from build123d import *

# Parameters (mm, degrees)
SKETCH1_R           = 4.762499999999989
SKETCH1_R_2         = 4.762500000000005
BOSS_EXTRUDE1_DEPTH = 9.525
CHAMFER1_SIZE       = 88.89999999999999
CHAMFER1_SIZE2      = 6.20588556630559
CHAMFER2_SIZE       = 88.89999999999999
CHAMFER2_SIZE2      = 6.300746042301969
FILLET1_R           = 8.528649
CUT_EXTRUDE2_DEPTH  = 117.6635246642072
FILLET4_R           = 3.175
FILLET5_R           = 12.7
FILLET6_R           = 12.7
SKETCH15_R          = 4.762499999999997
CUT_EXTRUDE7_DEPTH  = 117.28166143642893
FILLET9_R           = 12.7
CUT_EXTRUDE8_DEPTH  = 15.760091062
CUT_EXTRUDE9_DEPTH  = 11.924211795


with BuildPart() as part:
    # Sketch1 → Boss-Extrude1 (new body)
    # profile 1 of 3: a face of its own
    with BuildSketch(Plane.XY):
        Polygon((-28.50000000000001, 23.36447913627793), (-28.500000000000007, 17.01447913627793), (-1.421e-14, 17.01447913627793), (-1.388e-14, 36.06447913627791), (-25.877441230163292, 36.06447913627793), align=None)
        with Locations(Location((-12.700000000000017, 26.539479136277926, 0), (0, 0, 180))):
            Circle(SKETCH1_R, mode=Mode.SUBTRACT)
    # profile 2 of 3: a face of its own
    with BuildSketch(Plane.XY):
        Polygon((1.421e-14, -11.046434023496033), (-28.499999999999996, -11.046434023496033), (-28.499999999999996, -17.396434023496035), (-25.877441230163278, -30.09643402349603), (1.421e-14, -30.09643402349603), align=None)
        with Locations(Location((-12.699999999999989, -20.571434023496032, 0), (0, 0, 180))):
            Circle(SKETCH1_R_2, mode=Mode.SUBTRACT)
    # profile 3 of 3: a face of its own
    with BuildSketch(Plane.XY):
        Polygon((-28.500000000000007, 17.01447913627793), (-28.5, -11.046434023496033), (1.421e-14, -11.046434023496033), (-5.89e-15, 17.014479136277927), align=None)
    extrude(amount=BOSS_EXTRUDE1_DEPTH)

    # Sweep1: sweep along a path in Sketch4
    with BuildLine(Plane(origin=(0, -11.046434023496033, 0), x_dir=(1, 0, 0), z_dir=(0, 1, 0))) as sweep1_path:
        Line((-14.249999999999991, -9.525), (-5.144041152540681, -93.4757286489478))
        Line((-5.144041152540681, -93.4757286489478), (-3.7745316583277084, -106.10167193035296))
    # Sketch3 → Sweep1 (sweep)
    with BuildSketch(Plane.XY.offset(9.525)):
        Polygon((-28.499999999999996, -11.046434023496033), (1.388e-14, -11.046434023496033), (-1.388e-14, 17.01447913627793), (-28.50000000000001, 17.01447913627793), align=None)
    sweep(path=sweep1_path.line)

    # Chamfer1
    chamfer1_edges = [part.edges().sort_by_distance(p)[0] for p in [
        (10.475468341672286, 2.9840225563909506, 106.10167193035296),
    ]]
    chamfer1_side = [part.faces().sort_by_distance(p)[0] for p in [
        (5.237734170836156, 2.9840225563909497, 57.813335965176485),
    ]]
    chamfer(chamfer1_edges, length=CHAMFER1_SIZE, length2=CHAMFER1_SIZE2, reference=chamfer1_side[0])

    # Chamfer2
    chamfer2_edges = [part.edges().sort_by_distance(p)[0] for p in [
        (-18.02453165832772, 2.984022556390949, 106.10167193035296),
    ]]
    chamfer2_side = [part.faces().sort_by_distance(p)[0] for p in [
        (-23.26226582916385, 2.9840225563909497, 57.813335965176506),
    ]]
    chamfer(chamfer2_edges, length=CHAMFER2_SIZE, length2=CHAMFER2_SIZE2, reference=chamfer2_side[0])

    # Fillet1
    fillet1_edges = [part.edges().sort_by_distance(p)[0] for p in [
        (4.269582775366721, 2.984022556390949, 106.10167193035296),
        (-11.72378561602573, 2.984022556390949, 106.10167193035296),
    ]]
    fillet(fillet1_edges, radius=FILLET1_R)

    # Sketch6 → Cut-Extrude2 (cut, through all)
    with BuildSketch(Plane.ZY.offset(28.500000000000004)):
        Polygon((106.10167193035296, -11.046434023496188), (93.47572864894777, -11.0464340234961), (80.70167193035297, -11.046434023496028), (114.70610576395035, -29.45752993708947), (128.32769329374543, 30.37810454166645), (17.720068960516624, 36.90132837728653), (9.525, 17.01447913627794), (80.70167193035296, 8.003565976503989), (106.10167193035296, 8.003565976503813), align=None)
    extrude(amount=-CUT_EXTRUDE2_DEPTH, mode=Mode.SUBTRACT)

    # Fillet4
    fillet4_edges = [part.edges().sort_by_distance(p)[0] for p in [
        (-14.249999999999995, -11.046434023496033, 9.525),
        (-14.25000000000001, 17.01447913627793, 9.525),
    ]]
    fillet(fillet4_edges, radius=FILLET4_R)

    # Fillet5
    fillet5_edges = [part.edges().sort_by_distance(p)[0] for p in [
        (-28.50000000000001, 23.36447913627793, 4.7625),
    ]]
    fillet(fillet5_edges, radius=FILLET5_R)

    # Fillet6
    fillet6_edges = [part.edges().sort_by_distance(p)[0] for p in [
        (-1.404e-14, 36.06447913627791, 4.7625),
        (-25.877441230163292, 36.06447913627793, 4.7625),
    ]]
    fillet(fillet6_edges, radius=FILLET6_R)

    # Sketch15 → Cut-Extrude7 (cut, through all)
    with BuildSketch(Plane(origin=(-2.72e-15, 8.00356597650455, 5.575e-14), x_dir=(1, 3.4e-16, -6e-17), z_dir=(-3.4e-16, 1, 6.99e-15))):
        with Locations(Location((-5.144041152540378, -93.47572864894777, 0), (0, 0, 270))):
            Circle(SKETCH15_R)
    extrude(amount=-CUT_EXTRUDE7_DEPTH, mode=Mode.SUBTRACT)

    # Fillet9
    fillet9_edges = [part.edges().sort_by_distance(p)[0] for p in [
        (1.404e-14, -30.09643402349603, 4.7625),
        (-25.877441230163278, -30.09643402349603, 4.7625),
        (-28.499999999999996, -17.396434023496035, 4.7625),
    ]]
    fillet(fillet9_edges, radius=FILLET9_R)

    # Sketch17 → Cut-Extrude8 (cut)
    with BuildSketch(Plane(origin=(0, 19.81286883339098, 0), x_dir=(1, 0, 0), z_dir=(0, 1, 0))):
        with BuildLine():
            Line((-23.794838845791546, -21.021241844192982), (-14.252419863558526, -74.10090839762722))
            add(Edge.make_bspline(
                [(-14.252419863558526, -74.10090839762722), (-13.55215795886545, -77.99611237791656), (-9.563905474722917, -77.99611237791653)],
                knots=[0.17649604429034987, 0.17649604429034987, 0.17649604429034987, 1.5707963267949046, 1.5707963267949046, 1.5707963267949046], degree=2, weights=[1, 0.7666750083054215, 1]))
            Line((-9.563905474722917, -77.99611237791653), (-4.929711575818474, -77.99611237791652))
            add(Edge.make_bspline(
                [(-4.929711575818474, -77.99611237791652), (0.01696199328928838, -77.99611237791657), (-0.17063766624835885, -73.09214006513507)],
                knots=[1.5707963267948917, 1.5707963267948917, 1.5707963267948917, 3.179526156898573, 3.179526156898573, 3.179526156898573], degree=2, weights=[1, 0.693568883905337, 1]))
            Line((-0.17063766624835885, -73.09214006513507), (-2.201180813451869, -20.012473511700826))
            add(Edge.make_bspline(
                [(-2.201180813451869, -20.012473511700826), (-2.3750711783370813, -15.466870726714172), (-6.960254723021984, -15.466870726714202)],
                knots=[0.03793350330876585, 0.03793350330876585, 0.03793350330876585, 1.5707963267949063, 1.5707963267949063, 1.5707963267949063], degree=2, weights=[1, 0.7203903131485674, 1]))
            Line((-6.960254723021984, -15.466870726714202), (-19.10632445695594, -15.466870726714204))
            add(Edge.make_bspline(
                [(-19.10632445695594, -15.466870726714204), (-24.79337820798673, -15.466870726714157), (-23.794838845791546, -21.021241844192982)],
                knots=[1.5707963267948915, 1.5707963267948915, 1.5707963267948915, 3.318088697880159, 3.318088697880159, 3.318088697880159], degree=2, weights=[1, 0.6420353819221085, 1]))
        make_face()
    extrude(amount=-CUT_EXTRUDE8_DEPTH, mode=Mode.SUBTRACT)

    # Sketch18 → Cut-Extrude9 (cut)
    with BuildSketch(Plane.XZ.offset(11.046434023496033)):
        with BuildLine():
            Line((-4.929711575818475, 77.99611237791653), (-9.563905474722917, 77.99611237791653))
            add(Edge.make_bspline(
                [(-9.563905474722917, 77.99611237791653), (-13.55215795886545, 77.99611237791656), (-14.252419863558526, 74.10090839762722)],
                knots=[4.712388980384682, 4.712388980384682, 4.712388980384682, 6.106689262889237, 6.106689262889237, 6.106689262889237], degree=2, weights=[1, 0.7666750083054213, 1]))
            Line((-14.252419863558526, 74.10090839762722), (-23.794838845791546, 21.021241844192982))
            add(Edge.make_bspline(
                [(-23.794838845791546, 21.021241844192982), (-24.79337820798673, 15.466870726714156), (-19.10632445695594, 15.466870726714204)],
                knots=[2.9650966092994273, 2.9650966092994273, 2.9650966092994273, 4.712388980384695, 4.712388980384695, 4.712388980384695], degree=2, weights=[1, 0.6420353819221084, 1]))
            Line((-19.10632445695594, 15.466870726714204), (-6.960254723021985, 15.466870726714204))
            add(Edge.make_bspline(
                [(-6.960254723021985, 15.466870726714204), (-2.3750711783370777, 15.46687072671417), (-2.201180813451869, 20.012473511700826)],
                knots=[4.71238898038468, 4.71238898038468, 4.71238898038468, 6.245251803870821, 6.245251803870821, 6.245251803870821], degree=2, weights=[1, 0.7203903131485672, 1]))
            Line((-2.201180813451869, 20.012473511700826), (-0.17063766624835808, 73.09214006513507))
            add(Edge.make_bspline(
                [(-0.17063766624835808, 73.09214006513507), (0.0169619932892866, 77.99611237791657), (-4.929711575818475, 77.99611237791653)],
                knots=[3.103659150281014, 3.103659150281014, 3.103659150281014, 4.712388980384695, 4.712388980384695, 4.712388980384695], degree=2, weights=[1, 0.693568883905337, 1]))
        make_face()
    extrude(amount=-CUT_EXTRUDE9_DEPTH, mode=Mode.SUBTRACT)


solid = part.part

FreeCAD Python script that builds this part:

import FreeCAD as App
import Part
import Sketcher

V = App.Vector
Q = App.Units.Quantity


def edges_at(feature, points):
    """Names of the edges that pass closest to the given points."""
    edges = feature.Shape.Edges
    near = lambda p: min(range(len(edges)), key=lambda i: edges[i].distToShape(Part.Vertex(*p))[0])
    return sorted({f"Edge{near(p) + 1}" for p in points})


def add_polygon(sketch, points):
    """Adds a closed chain of lines whose ends are joined by coincident constraints."""
    first, n = sketch.GeometryCount, len(points)
    for a, b in zip(points, points[1:] + points[:1]):
        sketch.addGeometry(Part.LineSegment(App.Vector(*a, 0), App.Vector(*b, 0)), False)
    for i in range(n):
        sketch.addConstraint(Sketcher.Constraint("Coincident", first + i, 2, first + (i + 1) % n, 1))

doc = App.newDocument("Part")
body = doc.addObject("PartDesign::Body", "Body")

sketch1 = body.newObject("Sketcher::SketchObject", "Sketch")
sketch1.AttachmentSupport = (doc.getObject("XY_Plane"), [""])
sketch1.MapMode = "FlatFace"
add_polygon(sketch1, [(-28.5, 23.364479), (-28.5, -17.396434), (-25.877441, -30.096434), (0, -30.096434), (0, 36.064479), (-25.877441, 36.064479)])
sketch1.addGeometry(Part.Circle(V(-12.7, 26.539479, 0), V(0, 0, 1), 4.7625), False)
sketch1.addGeometry(Part.Circle(V(-12.7, -20.571434, 0), V(0, 0, 1), 4.7625), False)
sketch1.addConstraint(Sketcher.Constraint("Vertical", 0))
sketch1.addConstraint(Sketcher.Constraint("Horizontal", 2))
sketch1.addConstraint(Sketcher.Constraint("Vertical", 3))
sketch1.addConstraint(Sketcher.Constraint("Horizontal", 4))
sketch1.addConstraint(Sketcher.Constraint("Equal", 6, 7))
sketch1.addConstraint(Sketcher.Constraint("PointOnObject", 2, 2, -2))
sketch1.addConstraint(Sketcher.Constraint("Vertical", 6, 3, 7, 3))
sketch1.addConstraint(Sketcher.Constraint("Vertical", 1, 2, 4, 2))
sketch1.addConstraint(Sketcher.Constraint("Equal", 1, 5))
sketch1.addConstraint(Sketcher.Constraint("Diameter", 6, Q("0.375 in")))
sketch1.addConstraint(Sketcher.Constraint("DistanceX", 6, 3, -1, 1, Q("0.5 in")))
sketch1.addConstraint(Sketcher.Constraint("DistanceY", 1, 2, 0, 2, Q("0.5 in")))
sketch1.addConstraint(Sketcher.Constraint("DistanceY", 7, 3, 0, 2, Q("0.125 in")))
sketch1.addConstraint(Sketcher.Constraint("DistanceY", 6, 3, 3, 2, Q("0.375 in")))
sketch1.addConstraint(Sketcher.Constraint("DistanceX", 2, 1, 2, 2, 25.877441))
sketch1.addConstraint(Sketcher.Constraint("DistanceX", 0, 2, -1, 1, 28.5))
sketch1.addConstraint(Sketcher.Constraint("DistanceY", 0, 2, 0, 1, 40.760913))
sketch1.addConstraint(Sketcher.Constraint("DistanceY", -1, 1, 6, 3, 26.539479))
pad1 = body.newObject("PartDesign::Pad", "Pad")
pad1.Profile = sketch1
pad1.Length = Q("0.375 in")

sketch2 = body.newObject("Sketcher::SketchObject", "Sketch001")
sketch2.AttachmentSupport = (doc.getObject("XY_Plane"), [""])
sketch2.MapMode = "FlatFace"
sketch2.AttachmentOffset = App.Placement(V(0, 0, 0.375 * 25.4), App.Rotation())
add_polygon(sketch2, [(-28.5, -11.046434), (0, -11.046434), (0, 17.014479), (-28.5, 17.014479)])
sketch2.addConstraint(Sketcher.Constraint("Horizontal", 0))
sketch2.addConstraint(Sketcher.Constraint("Vertical", 1))
sketch2.addConstraint(Sketcher.Constraint("Horizontal", 2))
sketch2.addConstraint(Sketcher.Constraint("Vertical", 3))
sketch2.addConstraint(Sketcher.Constraint("PointOnObject", 0, 2, -2))
sketch2.addConstraint(Sketcher.Constraint("DistanceX", 0, 1, 0, 2, 28.5))
sketch2.addConstraint(Sketcher.Constraint("DistanceY", 1, 1, 1, 2, 28.060913))
sketch2.addConstraint(Sketcher.Constraint("DistanceY", -1, 1, 1, 2, 17.014479))

sketch3 = body.newObject("Sketcher::SketchObject", "Sketch002")
sketch3.Placement = App.Placement(V(-15.105437, 0, 1.638455), App.Rotation(V(0.107835393, 0, 0.994168762), V(0, 0.999999999, 0), V(-0.994168762, 0, 0.107835393), "ZXY"))
sketch3.addGeometry(Part.LineSegment(V(7.932803, -11.046434, 0), V(105.07594, -11.046434, 0)), False)
sketch3.addConstraint(Sketcher.Constraint("Horizontal", 0))
sketch3.addConstraint(Sketcher.Constraint("DistanceX", 0, 1, 0, 2, 97.143137))
sketch3.addConstraint(Sketcher.Constraint("DistanceX", -1, 1, 0, 2, 105.07594))
sketch3.addConstraint(Sketcher.Constraint("DistanceY", 0, 1, -1, 1, 11.046434))
doc.recompute()

additivepipe = body.newObject("PartDesign::AdditivePipe", "AdditivePipe")
additivepipe.Profile = sketch2
additivepipe.Spine = (sketch3, ["Edge1"])
doc.recompute()

chamfer = body.newObject("PartDesign::Chamfer", "Chamfer")
chamfer.Base = (additivepipe, edges_at(additivepipe, [(10.475, 2.984, 106.102)]))
chamfer.ChamferType = "Two distances"
chamfer.Size = Q("3.5 in")
chamfer.Size2 = 6.205886
chamfer.FlipDirection = True
doc.recompute()

chamfer2 = body.newObject("PartDesign::Chamfer", "Chamfer001")
chamfer2.Base = (chamfer, edges_at(chamfer, [(-18.025, 2.984, 106.102)]))
chamfer2.ChamferType = "Two distances"
chamfer2.Size = Q("3.5 in")
chamfer2.Size2 = 6.300746
chamfer2.FlipDirection = True
doc.recompute()

fillet = body.newObject("PartDesign::Fillet", "Fillet")
fillet.Base = (chamfer2, edges_at(chamfer2, [(4.27, 2.984, 106.102), (-11.724, 2.984, 106.102)]))
fillet.Radius = 8.528649

sketch4 = body.newObject("Sketcher::SketchObject", "Sketch003")
sketch4.AttachmentSupport = (doc.getObject("YZ_Plane"), [""])
sketch4.MapMode = "FlatFace"
sketch4.AttachmentOffset = App.Placement(V(0, 0, -28.5), App.Rotation())
add_polygon(sketch4, [(-11.046434, 106.101672), (-11.046434, 80.701672), (-29.45753, 114.706106), (30.378105, 128.327693), (36.901328, 17.720069), (17.014479, 9.525), (8.003566, 80.701672), (8.003566, 106.101672)])
sketch4.addConstraint(Sketcher.Constraint("Vertical", 0))
sketch4.addConstraint(Sketcher.Constraint("Vertical", 6))
sketch4.addConstraint(Sketcher.Constraint("Horizontal", 7))
sketch4.addConstraint(Sketcher.Constraint("Horizontal", 0, 2, 5, 2))
sketch4.addConstraint(Sketcher.Constraint("DistanceY", 0, 2, 0, 1, Q("1 in")))
sketch4.addConstraint(Sketcher.Constraint("DistanceX", 7, 2, 7, 1, Q("0.75 in")))
sketch4.addConstraint(Sketcher.Constraint("DistanceY", -1, 1, 4, 2, Q("0.375 in")))
sketch4.addConstraint(Sketcher.Constraint("Distance", 1, 38.668721))
sketch4.addConstraint(Sketcher.Constraint("Distance", 2, 61.366528))
sketch4.addConstraint(Sketcher.Constraint("DistanceY", -1, 1, 0, 2, 80.701672))
sketch4.addConstraint(Sketcher.Constraint("DistanceX", 1, 2, -1, 1, 29.45753))
sketch4.addConstraint(Sketcher.Constraint("DistanceX", -1, 1, 3, 2, 36.901328))
sketch4.addConstraint(Sketcher.Constraint("DistanceY", -1, 1, 3, 2, 17.720069))
sketch4.addConstraint(Sketcher.Constraint("DistanceX", -1, 1, 4, 2, 17.014479))
sketch4.addConstraint(Sketcher.Constraint("DistanceX", 0, 2, 2, 2, 41.424539))
sketch4.addConstraint(Sketcher.Constraint("DistanceY", 0, 2, 2, 2, 47.626021))
pocket1 = body.newObject("PartDesign::Pocket", "Pocket")
pocket1.Profile = sketch4
pocket1.Type = "ThroughAll"
pocket1.Reversed = True
doc.recompute()

fillet2 = body.newObject("PartDesign::Fillet", "Fillet001")
fillet2.Base = (pocket1, edges_at(pocket1, [(-14.25, -11.046, 9.525), (-14.25, 17.014, 9.525)]))
fillet2.Radius = Q("0.125 in")
doc.recompute()

fillet3 = body.newObject("PartDesign::Fillet", "Fillet002")
fillet3.Base = (fillet2, edges_at(fillet2, [(-28.5, 23.364, 4.763)]))
fillet3.Radius = Q("0.5 in")
doc.recompute()

fillet4 = body.newObject("PartDesign::Fillet", "Fillet003")
fillet4.Base = (fillet3, edges_at(fillet3, [(0, 36.064, 4.763), (-25.877, 36.064, 4.763)]))
fillet4.Radius = Q("0.5 in")

sketch5 = body.newObject("Sketcher::SketchObject", "Sketch004")
sketch5.AttachmentSupport = (doc.getObject("XZ_Plane"), [""])
sketch5.MapMode = "FlatFace"
sketch5.AttachmentOffset = App.Placement(V(0, 0, -8.003566), App.Rotation())
sketch5.addGeometry(Part.Circle(V(-5.144041, 93.475729, 0), V(0, 0, 1), 4.7625), False)
sketch5.addConstraint(Sketcher.Constraint("Diameter", 0, Q("0.375 in")))
sketch5.addConstraint(Sketcher.Constraint("DistanceX", 0, 3, -1, 1, 5.144041))
sketch5.addConstraint(Sketcher.Constraint("DistanceY", -1, 1, 0, 3, 93.475729))
pocket2 = body.newObject("PartDesign::Pocket", "Pocket001")
pocket2.Profile = sketch5
pocket2.Type = "ThroughAll"
pocket2.Reversed = True
doc.recompute()

fillet5 = body.newObject("PartDesign::Fillet", "Fillet004")
fillet5.Base = (pocket2, edges_at(pocket2, [(0, -30.096, 4.763), (-25.877, -30.096, 4.763), (-28.5, -17.396, 4.763)]))
fillet5.Radius = Q("0.5 in")

sketch6 = body.newObject("Sketcher::SketchObject", "Sketch005")
sketch6.AttachmentSupport = (doc.getObject("XZ_Plane"), [""])
sketch6.MapMode = "FlatFace"
sketch6.AttachmentOffset = App.Placement(V(0, 0, -19.812869), App.Rotation())
sketch6.addGeometry(Part.LineSegment(V(-23.794839, 21.021242, 0), V(-14.25242, 74.100908, 0)), False)
sketch6.addGeometry(Part.BSplineCurve([V(-14.25242, 74.100908, 0), V(-13.552158, 77.996112, 0), V(-9.563905, 77.996112, 0)], [3, 3], [0.176496044, 1.570796327], False, 2, [1, 0.766675008, 1], False), False)
sketch6.addGeometry(Part.LineSegment(V(-9.563905, 77.996112, 0), V(-4.929712, 77.996112, 0)), False)
sketch6.addGeometry(Part.BSplineCurve([V(-4.929712, 77.996112, 0), V(0.016962, 77.996112, 0), V(-0.170638, 73.09214, 0)], [3, 3], [1.570796327, 3.179526157], False, 2, [1, 0.693568884, 1], False), False)
sketch6.addGeometry(Part.LineSegment(V(-0.170638, 73.09214, 0), V(-2.201181, 20.012474, 0)), False)
sketch6.addGeometry(Part.BSplineCurve([V(-2.201181, 20.012474, 0), V(-2.375071, 15.466871, 0), V(-6.960255, 15.466871, 0)], [3, 3], [0.037933503, 1.570796327], False, 2, [1, 0.720390313, 1], False), False)
sketch6.addGeometry(Part.LineSegment(V(-6.960255, 15.466871, 0), V(-19.106324, 15.466871, 0)), False)
sketch6.addGeometry(Part.BSplineCurve([V(-19.106324, 15.466871, 0), V(-24.793378, 15.466871, 0), V(-23.794839, 21.021242, 0)], [3, 3], [1.570796327, 3.318088698], False, 2, [1, 0.642035382, 1], False), False)
sketch6.addConstraint(Sketcher.Constraint("Block", 1))
sketch6.addConstraint(Sketcher.Constraint("Block", 3))
sketch6.addConstraint(Sketcher.Constraint("Block", 5))
sketch6.addConstraint(Sketcher.Constraint("Block", 7))
sketch6.addConstraint(Sketcher.Constraint("Coincident", 0, 2, 1, 1))
sketch6.addConstraint(Sketcher.Constraint("Coincident", 1, 2, 2, 1))
sketch6.addConstraint(Sketcher.Constraint("Coincident", 2, 2, 3, 1))
sketch6.addConstraint(Sketcher.Constraint("Coincident", 3, 2, 4, 1))
sketch6.addConstraint(Sketcher.Constraint("Coincident", 4, 2, 5, 1))
sketch6.addConstraint(Sketcher.Constraint("Coincident", 5, 2, 6, 1))
sketch6.addConstraint(Sketcher.Constraint("Coincident", 6, 2, 7, 1))
sketch6.addConstraint(Sketcher.Constraint("Coincident", 7, 2, 0, 1))
pocket3 = body.newObject("PartDesign::Pocket", "Pocket002")
pocket3.Profile = sketch6
pocket3.Length = 15.760091
pocket3.Reversed = True

sketch7 = body.newObject("Sketcher::SketchObject", "Sketch006")
sketch7.AttachmentSupport = (doc.getObject("XZ_Plane"), [""])
sketch7.MapMode = "FlatFace"
sketch7.AttachmentOffset = App.Placement(V(0, 0, 11.046434), App.Rotation())
sketch7.addGeometry(Part.LineSegment(V(-4.929712, 77.996112, 0), V(-9.563905, 77.996112, 0)), False)
sketch7.addGeometry(Part.BSplineCurve([V(-9.563905, 77.996112, 0), V(-13.552158, 77.996112, 0), V(-14.25242, 74.100908, 0)], [3, 3], [4.71238898, 6.106689263], False, 2, [1, 0.766675008, 1], False), False)
sketch7.addGeometry(Part.LineSegment(V(-14.25242, 74.100908, 0), V(-23.794839, 21.021242, 0)), False)
sketch7.addGeometry(Part.BSplineCurve([V(-23.794839, 21.021242, 0), V(-24.793378, 15.466871, 0), V(-19.106324, 15.466871, 0)], [3, 3], [2.965096609, 4.71238898], False, 2, [1, 0.642035382, 1], False), False)
sketch7.addGeometry(Part.LineSegment(V(-19.106324, 15.466871, 0), V(-6.960255, 15.466871, 0)), False)
sketch7.addGeometry(Part.BSplineCurve([V(-6.960255, 15.466871, 0), V(-2.375071, 15.466871, 0), V(-2.201181, 20.012474, 0)], [3, 3], [4.71238898, 6.245251804], False, 2, [1, 0.720390313, 1], False), False)
sketch7.addGeometry(Part.LineSegment(V(-2.201181, 20.012474, 0), V(-0.170638, 73.09214, 0)), False)
sketch7.addGeometry(Part.BSplineCurve([V(-0.170638, 73.09214, 0), V(0.016962, 77.996112, 0), V(-4.929712, 77.996112, 0)], [3, 3], [3.10365915, 4.71238898], False, 2, [1, 0.693568884, 1], False), False)
sketch7.addConstraint(Sketcher.Constraint("Block", 1))
sketch7.addConstraint(Sketcher.Constraint("Block", 3))
sketch7.addConstraint(Sketcher.Constraint("Block", 5))
sketch7.addConstraint(Sketcher.Constraint("Block", 7))
sketch7.addConstraint(Sketcher.Constraint("Coincident", 0, 2, 1, 1))
sketch7.addConstraint(Sketcher.Constraint("Coincident", 1, 2, 2, 1))
sketch7.addConstraint(Sketcher.Constraint("Coincident", 2, 2, 3, 1))
sketch7.addConstraint(Sketcher.Constraint("Coincident", 3, 2, 4, 1))
sketch7.addConstraint(Sketcher.Constraint("Coincident", 4, 2, 5, 1))
sketch7.addConstraint(Sketcher.Constraint("Coincident", 5, 2, 6, 1))
sketch7.addConstraint(Sketcher.Constraint("Coincident", 6, 2, 7, 1))
sketch7.addConstraint(Sketcher.Constraint("Coincident", 7, 2, 0, 1))
pocket4 = body.newObject("PartDesign::Pocket", "Pocket003")
pocket4.Profile = sketch7
pocket4.Length = 11.924212

doc.recompute()
